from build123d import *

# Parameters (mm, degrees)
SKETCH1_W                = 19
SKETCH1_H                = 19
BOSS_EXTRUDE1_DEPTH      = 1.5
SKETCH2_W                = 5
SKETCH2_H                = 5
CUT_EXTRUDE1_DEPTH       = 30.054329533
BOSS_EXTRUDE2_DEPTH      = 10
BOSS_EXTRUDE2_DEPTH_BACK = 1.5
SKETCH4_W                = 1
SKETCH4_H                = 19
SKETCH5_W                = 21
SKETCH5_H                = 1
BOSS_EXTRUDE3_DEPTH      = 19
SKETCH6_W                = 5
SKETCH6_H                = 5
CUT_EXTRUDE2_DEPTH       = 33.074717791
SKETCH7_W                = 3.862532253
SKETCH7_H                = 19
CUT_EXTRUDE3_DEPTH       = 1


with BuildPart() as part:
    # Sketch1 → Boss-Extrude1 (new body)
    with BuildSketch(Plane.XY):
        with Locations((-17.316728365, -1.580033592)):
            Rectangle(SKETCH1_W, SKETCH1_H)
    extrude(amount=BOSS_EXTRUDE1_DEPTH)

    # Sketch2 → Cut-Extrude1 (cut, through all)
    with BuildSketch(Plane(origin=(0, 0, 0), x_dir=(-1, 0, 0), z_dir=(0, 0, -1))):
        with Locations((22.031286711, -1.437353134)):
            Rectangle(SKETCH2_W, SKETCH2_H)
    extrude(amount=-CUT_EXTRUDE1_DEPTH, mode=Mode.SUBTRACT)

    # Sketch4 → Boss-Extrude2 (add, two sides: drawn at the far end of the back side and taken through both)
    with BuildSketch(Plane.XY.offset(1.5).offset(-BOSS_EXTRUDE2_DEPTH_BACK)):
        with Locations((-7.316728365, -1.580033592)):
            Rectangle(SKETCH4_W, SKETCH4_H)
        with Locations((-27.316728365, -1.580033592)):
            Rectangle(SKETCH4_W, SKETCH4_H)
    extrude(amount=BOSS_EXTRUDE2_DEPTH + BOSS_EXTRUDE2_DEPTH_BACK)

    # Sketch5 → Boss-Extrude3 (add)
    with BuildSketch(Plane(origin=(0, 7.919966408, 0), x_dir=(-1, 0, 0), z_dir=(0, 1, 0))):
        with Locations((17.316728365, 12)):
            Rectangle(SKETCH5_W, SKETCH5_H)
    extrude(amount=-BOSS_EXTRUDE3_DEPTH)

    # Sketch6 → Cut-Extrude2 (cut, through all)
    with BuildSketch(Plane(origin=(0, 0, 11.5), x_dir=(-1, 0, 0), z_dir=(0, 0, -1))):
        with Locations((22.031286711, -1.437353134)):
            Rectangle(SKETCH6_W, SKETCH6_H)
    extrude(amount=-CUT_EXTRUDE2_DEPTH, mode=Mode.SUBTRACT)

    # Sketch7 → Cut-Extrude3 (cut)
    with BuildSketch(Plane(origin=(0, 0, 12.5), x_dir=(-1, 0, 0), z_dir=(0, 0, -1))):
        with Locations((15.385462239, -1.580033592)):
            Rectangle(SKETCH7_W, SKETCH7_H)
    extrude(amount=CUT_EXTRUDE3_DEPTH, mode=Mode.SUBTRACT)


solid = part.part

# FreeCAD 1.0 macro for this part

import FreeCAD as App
import Part
import Sketcher
from FreeCAD import Vector


def add_polygon(sketch, points):
    """Adds a closed chain of lines whose ends are joined by coincident constraints."""
    first, n = sketch.GeometryCount, len(points)
    for a, b in zip(points, points[1:] + points[:1]):
        sketch.addGeometry(Part.LineSegment(App.Vector(*a, 0), App.Vector(*b, 0)), False)
    for i in range(n):
        sketch.addConstraint(Sketcher.Constraint("Coincident", first + i, 2, first + (i + 1) % n, 1))

doc = App.newDocument("Part")
body = doc.addObject("PartDesign::Body", "Body")

sketch1 = body.newObject("Sketcher::SketchObject", "Sketch")
sketch1.AttachmentSupport = (doc.getObject("XY_Plane"), [""])
sketch1.MapMode = "FlatFace"
add_polygon(sketch1, [(-27, 8), (-27, -11), (-8, -11), (-8, 8)])
sketch1.addConstraint(Sketcher.Constraint("Vertical", 0))
sketch1.addConstraint(Sketcher.Constraint("Horizontal", 1))
sketch1.addConstraint(Sketcher.Constraint("Vertical", 2))
sketch1.addConstraint(Sketcher.Constraint("Horizontal", 3))
sketch1.addConstraint(Sketcher.Constraint("Equal", 3, 0))
sketch1.addConstraint(Sketcher.Constraint("DistanceX", 1, 1, 1, 2, 19.0))
sketch1.addConstraint(Sketcher.Constraint("DistanceX", 0, 2, -1, 1, 26.816728))
sketch1.addConstraint(Sketcher.Constraint("DistanceY", 0, 2, -1, 1, 11.080034))
pad1 = body.newObject("PartDesign::Pad", "Pad")
pad1.Profile = sketch1
pad1.Length = 1.5

sketch2 = body.newObject("Sketcher::SketchObject", "Sketch001")
sketch2.AttachmentSupport = (doc.getObject("XY_Plane"), [""])
sketch2.MapMode = "FlatFace"
add_polygon(sketch2, [(-20, 1), (-20, -4), (-25, -4), (-25, 1)])
sketch2.addConstraint(Sketcher.Constraint("Vertical", 0))
sketch2.addConstraint(Sketcher.Constraint("Horizontal", 1))
sketch2.addConstraint(Sketcher.Constraint("Vertical", 2))
sketch2.addConstraint(Sketcher.Constraint("Horizontal", 3))
sketch2.addConstraint(Sketcher.Constraint("Equal", 3, 0))
sketch2.addConstraint(Sketcher.Constraint("DistanceX", 1, 2, 1, 1, 5.0))
sketch2.addConstraint(Sketcher.Constraint("DistanceX", 0, 2, -1, 1, 19.531287))
sketch2.addConstraint(Sketcher.Constraint("DistanceY", 0, 2, -1, 1, 3.937353))
pocket1 = body.newObject("PartDesign::Pocket", "Pocket")
pocket1.Profile = sketch2
pocket1.Type = "ThroughAll"
pocket1.Reversed = True

sketch3 = body.newObject("Sketcher::SketchObject", "Sketch002")
sketch3.AttachmentSupport = (doc.getObject("XY_Plane"), [""])
sketch3.MapMode = "FlatFace"
sketch3.AttachmentOffset = App.Placement(Vector(0, 0, 1.5), App.Rotation())
add_polygon(sketch3, [(-7.8, 7.9), (-7.8, -11.1), (-6.8, -11.1), (-6.8, 7.9)])
add_polygon(sketch3, [(-27.8, 7.9), (-27.8, -11.1), (-26.8, -11.1), (-26.8, 7.9)])
sketch3.addConstraint(Sketcher.Constraint("Vertical", 0))
sketch3.addConstraint(Sketcher.Constraint("Horizontal", 1))
sketch3.addConstraint(Sketcher.Constraint("Vertical", 2))
sketch3.addConstraint(Sketcher.Constraint("Horizontal", 3))
sketch3.addConstraint(Sketcher.Constraint("Vertical", 4))
sketch3.addConstraint(Sketcher.Constraint("Horizontal", 5))
sketch3.addConstraint(Sketcher.Constraint("Vertical", 6))
sketch3.addConstraint(Sketcher.Constraint("Horizontal", 7))
sketch3.addConstraint(Sketcher.Constraint("Horizontal", 1, 2, 4, 2))
sketch3.addConstraint(Sketcher.Constraint("Horizontal", 3, 2, 6, 2))
sketch3.addConstraint(Sketcher.Constraint("Equal", 3, 5))
sketch3.addConstraint(Sketcher.Constraint("DistanceX", 1, 1, 1, 2, 1.0))
sketch3.addConstraint(Sketcher.Constraint("DistanceY", 0, 2, 0, 1, 19.0))
sketch3.addConstraint(Sketcher.Constraint("DistanceX", 4, 2, 0, 2, 20.0))
sketch3.addConstraint(Sketcher.Constraint("DistanceX", 0, 2, -1, 1, 7.816728))
sketch3.addConstraint(Sketcher.Constraint("DistanceY", 0, 2, -1, 1, 11.080034))
pad2 = body.newObject("PartDesign::Pad", "Pad001")
pad2.Profile = sketch3
pad2.Type = "TwoLengths"
pad2.Length = 10
pad2.Length2 = 1.5

sketch4 = body.newObject("Sketcher::SketchObject", "Sketch003")
sketch4.AttachmentSupport = (doc.getObject("XZ_Plane"), [""])
sketch4.MapMode = "FlatFace"
sketch4.AttachmentOffset = App.Placement(Vector(0, 0, -7.919966), App.Rotation())
add_polygon(sketch4, [(-6.8, 12.5), (-6.8, 11.5), (-27.8, 11.5), (-27.8, 12.5)])
sketch4.addConstraint(Sketcher.Constraint("Vertical", 0))
sketch4.addConstraint(Sketcher.Constraint("Horizontal", 1))
sketch4.addConstraint(Sketcher.Constraint("Vertical", 2))
sketch4.addConstraint(Sketcher.Constraint("Horizontal", 3))
sketch4.addConstraint(Sketcher.Constraint("DistanceX", 1, 2, 1, 1, 21.0))
sketch4.addConstraint(Sketcher.Constraint("DistanceY", 0, 2, 0, 1, 1.0))
sketch4.addConstraint(Sketcher.Constraint("DistanceY", -1, 1, 0, 2, 11.5))
sketch4.addConstraint(Sketcher.Constraint("DistanceX", 0, 2, -1, 1, 6.816728))
pad3 = body.newObject("PartDesign::Pad", "Pad002")
pad3.Profile = sketch4
pad3.Length = 19

sketch5 = body.newObject("Sketcher::SketchObject", "Sketch004")
sketch5.AttachmentSupport = (doc.getObject("XY_Plane"), [""])
sketch5.MapMode = "FlatFace"
sketch5.AttachmentOffset = App.Placement(Vector(0, 0, 11.5), App.Rotation())
add_polygon(sketch5, [(-20, 1), (-20, -4), (-25, -4), (-25, 1)])
sketch5.addConstraint(Sketcher.Constraint("Vertical", 0))
sketch5.addConstraint(Sketcher.Constraint("Horizontal", 1))
sketch5.addConstraint(Sketcher.Constraint("Vertical", 2))
sketch5.addConstraint(Sketcher.Constraint("Horizontal", 3))
sketch5.addConstraint(Sketcher.Constraint("Equal", 3, 0))
sketch5.addConstraint(Sketcher.Constraint("DistanceX", 1, 2, 1, 1, 5.0))
sketch5.addConstraint(Sketcher.Constraint("DistanceX", 0, 2, -1, 1, 19.531287))
sketch5.addConstraint(Sketcher.Constraint("DistanceY", 0, 2, -1, 1, 3.937353))
pocket2 = body.newObject("PartDesign::Pocket", "Pocket001")
pocket2.Profile = sketch5
pocket2.Type = "ThroughAll"
pocket2.Reversed = True

sketch6 = body.newObject("Sketcher::SketchObject", "Sketch005")
sketch6.AttachmentSupport = (doc.getObject("XY_Plane"), [""])
sketch6.MapMode = "FlatFace"
sketch6.AttachmentOffset = App.Placement(Vector(0, 0, 12.5), App.Rotation())
add_polygon(sketch6, [(-13.5, 7.9), (-13.5, -11.1), (-17.3, -11.1), (-17.3, 7.9)])
sketch6.addConstraint(Sketcher.Constraint("Vertical", 0))
sketch6.addConstraint(Sketcher.Constraint("Horizontal", 1))
sketch6.addConstraint(Sketcher.Constraint("Vertical", 2))
sketch6.addConstraint(Sketcher.Constraint("Horizontal", 3))
sketch6.addConstraint(Sketcher.Constraint("DistanceY", 0, 2, 0, 1, 19.0))
sketch6.addConstraint(Sketcher.Constraint("DistanceX", 1, 2, 1, 1, 3.862532))
sketch6.addConstraint(Sketcher.Constraint("DistanceX", 1, 2, -1, 1, 17.316728))
sketch6.addConstraint(Sketcher.Constraint("DistanceY", 0, 2, -1, 1, 11.080034))
pocket3 = body.newObject("PartDesign::Pocket", "Pocket002")
pocket3.Profile = sketch6
pocket3.Length = 1

doc.recompute()
